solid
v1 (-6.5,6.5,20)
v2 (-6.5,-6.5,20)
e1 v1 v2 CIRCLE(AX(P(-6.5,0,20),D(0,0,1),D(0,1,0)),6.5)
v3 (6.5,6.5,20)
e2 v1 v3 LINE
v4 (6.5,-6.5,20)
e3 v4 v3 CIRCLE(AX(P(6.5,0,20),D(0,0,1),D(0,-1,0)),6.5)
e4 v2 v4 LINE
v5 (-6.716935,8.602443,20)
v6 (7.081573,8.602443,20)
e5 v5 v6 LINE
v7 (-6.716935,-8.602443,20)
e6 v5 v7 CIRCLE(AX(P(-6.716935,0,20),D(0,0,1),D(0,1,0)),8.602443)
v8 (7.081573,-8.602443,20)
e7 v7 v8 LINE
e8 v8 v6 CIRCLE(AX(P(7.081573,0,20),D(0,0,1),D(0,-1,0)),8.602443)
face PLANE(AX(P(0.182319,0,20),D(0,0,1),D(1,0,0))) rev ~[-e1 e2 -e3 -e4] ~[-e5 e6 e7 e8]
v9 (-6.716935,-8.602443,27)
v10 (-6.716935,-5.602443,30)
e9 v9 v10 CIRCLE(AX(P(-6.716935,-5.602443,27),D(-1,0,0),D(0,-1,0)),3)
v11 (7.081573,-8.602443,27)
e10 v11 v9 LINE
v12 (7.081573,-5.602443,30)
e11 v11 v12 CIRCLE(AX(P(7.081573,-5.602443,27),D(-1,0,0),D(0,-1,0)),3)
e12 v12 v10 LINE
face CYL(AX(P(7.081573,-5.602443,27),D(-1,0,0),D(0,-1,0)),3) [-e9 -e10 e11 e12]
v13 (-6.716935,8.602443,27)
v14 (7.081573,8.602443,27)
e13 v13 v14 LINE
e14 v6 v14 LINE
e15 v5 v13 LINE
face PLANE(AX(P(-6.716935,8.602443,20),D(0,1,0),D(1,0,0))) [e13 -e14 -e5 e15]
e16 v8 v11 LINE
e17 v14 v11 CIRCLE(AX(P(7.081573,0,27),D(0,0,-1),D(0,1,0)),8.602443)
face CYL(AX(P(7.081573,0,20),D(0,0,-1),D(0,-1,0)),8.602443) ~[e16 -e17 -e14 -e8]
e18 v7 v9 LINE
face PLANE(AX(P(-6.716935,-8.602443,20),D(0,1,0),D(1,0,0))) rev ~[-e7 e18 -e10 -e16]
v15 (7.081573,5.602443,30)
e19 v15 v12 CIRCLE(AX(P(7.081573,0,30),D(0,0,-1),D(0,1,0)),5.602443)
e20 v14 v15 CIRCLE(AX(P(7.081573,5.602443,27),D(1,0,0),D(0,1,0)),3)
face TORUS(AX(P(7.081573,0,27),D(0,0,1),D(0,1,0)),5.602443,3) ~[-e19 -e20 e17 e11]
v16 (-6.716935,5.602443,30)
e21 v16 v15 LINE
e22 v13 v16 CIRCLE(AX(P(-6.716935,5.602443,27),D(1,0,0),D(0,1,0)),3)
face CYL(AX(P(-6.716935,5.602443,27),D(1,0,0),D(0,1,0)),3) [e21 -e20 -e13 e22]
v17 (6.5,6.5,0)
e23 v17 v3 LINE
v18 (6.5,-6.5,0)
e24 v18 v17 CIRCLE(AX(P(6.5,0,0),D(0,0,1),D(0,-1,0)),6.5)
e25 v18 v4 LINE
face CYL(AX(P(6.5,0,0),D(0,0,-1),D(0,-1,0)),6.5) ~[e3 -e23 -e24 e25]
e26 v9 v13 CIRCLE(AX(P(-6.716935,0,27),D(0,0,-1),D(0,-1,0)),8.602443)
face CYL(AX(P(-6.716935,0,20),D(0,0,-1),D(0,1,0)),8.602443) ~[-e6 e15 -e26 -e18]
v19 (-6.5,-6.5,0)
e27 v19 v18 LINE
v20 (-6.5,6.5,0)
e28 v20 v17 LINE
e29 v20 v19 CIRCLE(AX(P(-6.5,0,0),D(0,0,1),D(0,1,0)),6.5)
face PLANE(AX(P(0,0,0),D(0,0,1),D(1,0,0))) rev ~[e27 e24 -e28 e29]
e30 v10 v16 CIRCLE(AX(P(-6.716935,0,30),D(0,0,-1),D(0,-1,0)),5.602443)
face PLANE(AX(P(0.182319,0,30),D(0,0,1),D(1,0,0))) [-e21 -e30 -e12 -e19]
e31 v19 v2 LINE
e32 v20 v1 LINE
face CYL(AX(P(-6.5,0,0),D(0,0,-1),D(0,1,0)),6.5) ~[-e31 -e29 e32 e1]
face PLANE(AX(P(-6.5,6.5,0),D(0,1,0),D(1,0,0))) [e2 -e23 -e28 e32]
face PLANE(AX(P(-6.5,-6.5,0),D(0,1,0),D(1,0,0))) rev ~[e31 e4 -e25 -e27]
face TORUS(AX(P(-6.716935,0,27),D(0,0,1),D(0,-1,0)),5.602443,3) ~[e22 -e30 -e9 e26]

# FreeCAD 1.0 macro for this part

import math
import FreeCAD as App
import Part
import Sketcher
from FreeCAD import Vector


def edges_at(feature, points):
    """Names of the edges that pass closest to the given points."""
    edges = feature.Shape.Edges
    near = lambda p: min(range(len(edges)), key=lambda i: edges[i].distToShape(Part.Vertex(*p))[0])
    return sorted({f"Edge{near(p) + 1}" for p in points})

doc = App.newDocument("Part")
params = doc.addObject("Spreadsheet::Sheet", "Params")
for row, (alias, value) in enumerate([
    ("sketch1_radius", "6.5 mm"),
    ("sketch1_width", "13 mm"),
    ("pad1_length", "20 mm"),
    ("pad2_length", "10 mm"),
    ("fillet_radius", "3 mm"),
], start=1):
    params.set(f"A{row}", alias)
    params.set(f"B{row}", "=" + value)
    params.setAlias(f"B{row}", alias)

body = doc.addObject("PartDesign::Body", "Body")

# Sketch on XY plane
sketch1 = body.newObject("Sketcher::SketchObject", "Sketch")
sketch1.AttachmentSupport = (doc.getObject("XY_Plane"), [""])
sketch1.MapMode = "FlatFace"
sketch1.addGeometry(Part.ArcOfCircle(Part.Circle(Vector(-6, 0, 0), Vector(0, 0, 1), 6), math.radians(90), math.radians(270)), False)
sketch1.addGeometry(Part.LineSegment(Vector(-6, -6, 0), Vector(6, -6, 0)), False)
sketch1.addGeometry(Part.ArcOfCircle(Part.Circle(Vector(6, 0, 0), Vector(0, 0, 1), 6), math.radians(-90), math.radians(90)), False)
sketch1.addGeometry(Part.LineSegment(Vector(6, 6, 0), Vector(-6, 6, 0)), False)
sketch1.addConstraint(Sketcher.Constraint("Tangent", 0, 2, 1, 1))
sketch1.addConstraint(Sketcher.Constraint("Tangent", 1, 2, 2, 1))
sketch1.addConstraint(Sketcher.Constraint("Tangent", 2, 2, 3, 1))
sketch1.addConstraint(Sketcher.Constraint("Tangent", 3, 2, 0, 1))
sketch1.addConstraint(Sketcher.Constraint("Horizontal", 1))
sketch1.addConstraint(Sketcher.Constraint("Horizontal", 3))
sketch1.addConstraint(Sketcher.Constraint("Symmetric", 0, 3, 2, 3, -1, 1))
sketch1.addConstraint(Sketcher.Constraint("Radius", 0, 6.5))
sketch1.addConstraint(Sketcher.Constraint("DistanceX", 1, 1, 1, 2, 13.0))
sketch1.setExpression("Constraints[7]", "Params.sketch1_radius")
sketch1.setExpression("Constraints[8]", "Params.sketch1_width")
pad1 = body.newObject("PartDesign::Pad", "Pad")
pad1.Profile = sketch1
pad1.setExpression("Length", "Params.pad1_length")

# Sketch on XY plane
sketch2 = body.newObject("Sketcher::SketchObject", "Sketch001")
sketch2.AttachmentSupport = (doc.getObject("XY_Plane"), [""])
sketch2.MapMode = "FlatFace"
sketch2.AttachmentOffset = App.Placement(Vector(0, 0, 20), App.Rotation())
sketch2.addGeometry(Part.ArcOfCircle(Part.Circle(Vector(-7, 0, 0), Vector(0, 0, 1), 9), math.radians(90), math.radians(270)), False)
sketch2.addGeometry(Part.LineSegment(Vector(-7, -9, 0), Vector(7, -9, 0)), False)
sketch2.addGeometry(Part.ArcOfCircle(Part.Circle(Vector(7, 0, 0), Vector(0, 0, 1), 9), math.radians(-90), math.radians(90)), False)
sketch2.addGeometry(Part.LineSegment(Vector(7, 9, 0), Vector(-7, 9, 0)), False)
sketch2.addConstraint(Sketcher.Constraint("Tangent", 0, 2, 1, 1))
sketch2.addConstraint(Sketcher.Constraint("Tangent", 1, 2, 2, 1))
sketch2.addConstraint(Sketcher.Constraint("Tangent", 2, 2, 3, 1))
sketch2.addConstraint(Sketcher.Constraint("Tangent", 3, 2, 0, 1))
sketch2.addConstraint(Sketcher.Constraint("Horizontal", 1))
sketch2.addConstraint(Sketcher.Constraint("Horizontal", 3))
sketch2.addConstraint(Sketcher.Constraint("PointOnObject", 0, 3, -1))
sketch2.addConstraint(Sketcher.Constraint("Radius", 0, 8.602443))
sketch2.addConstraint(Sketcher.Constraint("DistanceX", 1, 1, 1, 2, 13.798508))
sketch2.addConstraint(Sketcher.Constraint("DistanceX", 0, 3, -1, 1, 6.716935))
pad2 = body.newObject("PartDesign::Pad", "Pad001")
pad2.Profile = sketch2
pad2.setExpression("Length", "Params.pad2_length")
doc.recompute()

fillet = body.newObject("PartDesign::Fillet", "Fillet")
fillet.Base = (pad2, edges_at(pad2, [
    (0.182, 8.602, 30),
    (-15.319, 0, 30),
    (0.182, -8.602, 30),
    (15.684, 0, 30),
]))
fillet.setExpression("Radius", "Params.fillet_radius")

doc.recompute()
